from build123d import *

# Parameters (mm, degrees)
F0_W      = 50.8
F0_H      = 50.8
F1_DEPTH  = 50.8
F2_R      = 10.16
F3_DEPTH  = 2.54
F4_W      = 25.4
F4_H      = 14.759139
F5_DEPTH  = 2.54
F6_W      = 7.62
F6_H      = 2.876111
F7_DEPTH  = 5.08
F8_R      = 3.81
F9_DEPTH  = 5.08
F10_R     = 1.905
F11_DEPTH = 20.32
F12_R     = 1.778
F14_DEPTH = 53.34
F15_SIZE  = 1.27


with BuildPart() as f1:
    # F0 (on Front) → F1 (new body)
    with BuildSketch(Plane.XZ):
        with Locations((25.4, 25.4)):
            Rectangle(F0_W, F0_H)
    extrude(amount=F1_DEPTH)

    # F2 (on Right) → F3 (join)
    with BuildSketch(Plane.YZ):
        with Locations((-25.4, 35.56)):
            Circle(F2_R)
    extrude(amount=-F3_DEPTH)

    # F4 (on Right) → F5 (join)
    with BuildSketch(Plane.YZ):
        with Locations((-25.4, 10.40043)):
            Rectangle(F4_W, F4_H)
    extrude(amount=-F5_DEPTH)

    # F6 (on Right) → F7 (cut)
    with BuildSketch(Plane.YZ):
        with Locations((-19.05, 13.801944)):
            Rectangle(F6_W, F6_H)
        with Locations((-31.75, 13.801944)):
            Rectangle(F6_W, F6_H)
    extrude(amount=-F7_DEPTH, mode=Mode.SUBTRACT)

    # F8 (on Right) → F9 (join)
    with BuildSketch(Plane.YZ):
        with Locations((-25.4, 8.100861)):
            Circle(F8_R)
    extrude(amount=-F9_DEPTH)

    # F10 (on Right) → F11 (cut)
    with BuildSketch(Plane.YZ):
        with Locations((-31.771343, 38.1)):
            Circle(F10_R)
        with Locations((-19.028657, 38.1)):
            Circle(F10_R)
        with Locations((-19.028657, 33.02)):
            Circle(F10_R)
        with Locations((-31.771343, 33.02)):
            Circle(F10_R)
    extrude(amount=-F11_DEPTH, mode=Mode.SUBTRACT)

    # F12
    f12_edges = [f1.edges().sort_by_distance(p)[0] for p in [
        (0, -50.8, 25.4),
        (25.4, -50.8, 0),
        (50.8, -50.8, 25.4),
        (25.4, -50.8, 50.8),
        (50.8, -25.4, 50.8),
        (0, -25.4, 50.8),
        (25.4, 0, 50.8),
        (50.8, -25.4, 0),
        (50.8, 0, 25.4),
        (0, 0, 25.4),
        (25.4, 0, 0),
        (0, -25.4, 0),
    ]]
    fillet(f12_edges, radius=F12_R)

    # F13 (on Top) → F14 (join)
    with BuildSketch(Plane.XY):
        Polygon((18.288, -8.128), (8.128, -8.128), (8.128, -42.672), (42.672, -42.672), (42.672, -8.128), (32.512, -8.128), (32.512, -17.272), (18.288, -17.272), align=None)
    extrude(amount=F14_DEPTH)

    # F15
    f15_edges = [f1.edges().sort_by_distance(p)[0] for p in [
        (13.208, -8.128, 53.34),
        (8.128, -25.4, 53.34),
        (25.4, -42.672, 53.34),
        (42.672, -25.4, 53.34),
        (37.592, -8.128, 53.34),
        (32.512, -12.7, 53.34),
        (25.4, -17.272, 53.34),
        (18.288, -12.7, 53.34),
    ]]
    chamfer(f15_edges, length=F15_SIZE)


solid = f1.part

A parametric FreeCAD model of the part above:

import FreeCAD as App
import Part
import Sketcher
Q = App.Units.Quantity


def edges_at(feature, points):
    """Names of the edges that pass closest to the given points."""
    edges = feature.Shape.Edges
    near = lambda p: min(range(len(edges)), key=lambda i: edges[i].distToShape(Part.Vertex(*p))[0])
    return sorted({f"Edge{near(p) + 1}" for p in points})

doc = App.newDocument("Part")
params = doc.addObject("Spreadsheet::Sheet", "Params")
for row, (alias, value) in enumerate([
    ("sketch1_width", "2 in"),
    ("pad1_length", "2 in"),
    ("sketch2_diameter", "0.8 in"),
    ("pad2_length", "0.1 in"),
    ("sketch3_width", "1 in"),
    ("pad3_length", "0.1 in"),
    ("sketch4_width", "0.3 in"),
    ("pocket1_length", "0.2 in"),
    ("sketch5_diameter", "0.3 in"),
    ("pad4_length", "0.2 in"),
    ("sketch6_diameter", "0.15 in"),
    ("pocket2_length", "0.8 in"),
    ("fillet_radius", "0.07 in"),
    ("sketch7_width", "0.4 in"),
    ("sketch7_width2", "1.36 in"),
    ("pad5_length", "2.1 in"),
    ("chamfer_size", "0.05 in"),
], start=1):
    params.set(f"A{row}", alias)
    params.set(f"B{row}", "=" + value)
    params.setAlias(f"B{row}", alias)

body = doc.addObject("PartDesign::Body", "Body")

sketch1 = doc.addObject("Sketcher::SketchObject", "Sketch")
body.addObject(sketch1)
sketch1.AttachmentSupport = (doc.XZ_Plane, [""])
sketch1.MapMode = "FlatFace"
sketch1.addGeometry([
    Part.LineSegment(App.Vector(0, 51, 0), App.Vector(0, 0, 0)),
    Part.LineSegment(App.Vector(0, 0, 0), App.Vector(51, 0, 0)),
    Part.LineSegment(App.Vector(51, 0, 0), App.Vector(51, 51, 0)),
    Part.LineSegment(App.Vector(51, 51, 0), App.Vector(0, 51, 0)),
], False)
sketch1.addConstraint([
    Sketcher.Constraint("Coincident", 0, 2, 1, 1),
    Sketcher.Constraint("Coincident", 1, 2, 2, 1),
    Sketcher.Constraint("Coincident", 2, 2, 3, 1),
    Sketcher.Constraint("Coincident", 3, 2, 0, 1),
    Sketcher.Constraint("Vertical", 0),
    Sketcher.Constraint("Horizontal", 1),
    Sketcher.Constraint("Vertical", 2),
    Sketcher.Constraint("Horizontal", 3),
    Sketcher.Constraint("Coincident", 0, 2, -1, 1),
    Sketcher.Constraint("Equal", 3, 0),
    Sketcher.Constraint("DistanceX", 1, 1, 1, 2, Q("2 in")),
])
sketch1.setExpression("Constraints[10]", "Params.sketch1_width")
pad1 = doc.addObject("PartDesign::Pad", "Pad")
body.addObject(pad1)
pad1.Profile = sketch1
pad1.setExpression("Length", "Params.pad1_length")

sketch2 = doc.addObject("Sketcher::SketchObject", "Sketch001")
body.addObject(sketch2)
sketch2.AttachmentSupport = (doc.YZ_Plane, [""])
sketch2.MapMode = "FlatFace"
sketch2.addGeometry(Part.Circle(App.Vector(-25, 36, 0), App.Vector(0, 0, 1), 10), False)
sketch2.addConstraint([
    Sketcher.Constraint("Diameter", 0, Q("0.8 in")),
    Sketcher.Constraint("DistanceX", 0, 3, -1, 1, Q("1 in")),
    Sketcher.Constraint("DistanceY", -1, 1, 0, 3, Q("1.4 in")),
])
sketch2.setExpression("Constraints[0]", "Params.sketch2_diameter")
pad2 = doc.addObject("PartDesign::Pad", "Pad001")
body.addObject(pad2)
pad2.Profile = sketch2
pad2.setExpression("Length", "Params.pad2_length")
pad2.Reversed = True

sketch3 = doc.addObject("Sketcher::SketchObject", "Sketch002")
body.addObject(sketch3)
sketch3.AttachmentSupport = (doc.YZ_Plane, [""])
sketch3.MapMode = "FlatFace"
sketch3.addGeometry([
    Part.LineSegment(App.Vector(-38, 18, 0), App.Vector(-38, 3, 0)),
    Part.LineSegment(App.Vector(-38, 3, 0), App.Vector(-13, 3, 0)),
    Part.LineSegment(App.Vector(-13, 3, 0), App.Vector(-13, 18, 0)),
    Part.LineSegment(App.Vector(-13, 18, 0), App.Vector(-38, 18, 0)),
], False)
sketch3.addConstraint([
    Sketcher.Constraint("Coincident", 0, 2, 1, 1),
    Sketcher.Constraint("Coincident", 1, 2, 2, 1),
    Sketcher.Constraint("Coincident", 2, 2, 3, 1),
    Sketcher.Constraint("Coincident", 3, 2, 0, 1),
    Sketcher.Constraint("Vertical", 0),
    Sketcher.Constraint("Horizontal", 1),
    Sketcher.Constraint("Vertical", 2),
    Sketcher.Constraint("Horizontal", 3),
    Sketcher.Constraint("DistanceX", 1, 1, 1, 2, Q("1 in")),
    Sketcher.Constraint("DistanceX", 0, 2, -1, 1, Q("1.5 in")),
    Sketcher.Constraint("DistanceY", -1, 1, 2, 2, Q("0.7 in")),
    Sketcher.Constraint("DistanceY", 0, 2, 0, 1, 14.759139),
])
sketch3.setExpression("Constraints[8]", "Params.sketch3_width")
pad3 = doc.addObject("PartDesign::Pad", "Pad002")
body.addObject(pad3)
pad3.Profile = sketch3
pad3.setExpression("Length", "Params.pad3_length")
pad3.Reversed = True

sketch4 = doc.addObject("Sketcher::SketchObject", "Sketch003")
body.addObject(sketch4)
sketch4.AttachmentSupport = (doc.YZ_Plane, [""])
sketch4.MapMode = "FlatFace"
sketch4.addGeometry([
    Part.LineSegment(App.Vector(-22.9, 15.2, 0), App.Vector(-22.9, 12.4, 0)),
    Part.LineSegment(App.Vector(-22.9, 12.4, 0), App.Vector(-15.2, 12.4, 0)),
    Part.LineSegment(App.Vector(-15.2, 12.4, 0), App.Vector(-15.2, 15.2, 0)),
    Part.LineSegment(App.Vector(-15.2, 15.2, 0), App.Vector(-22.9, 15.2, 0)),
    Part.LineSegment(App.Vector(-35.6, 15.2, 0), App.Vector(-35.6, 12.4, 0)),
    Part.LineSegment(App.Vector(-35.6, 12.4, 0), App.Vector(-27.9, 12.4, 0)),
    Part.LineSegment(App.Vector(-27.9, 12.4, 0), App.Vector(-27.9, 15.2, 0)),
    Part.LineSegment(App.Vector(-27.9, 15.2, 0), App.Vector(-35.6, 15.2, 0)),
], False)
sketch4.addConstraint([
    Sketcher.Constraint("Coincident", 0, 2, 1, 1),
    Sketcher.Constraint("Coincident", 1, 2, 2, 1),
    Sketcher.Constraint("Coincident", 2, 2, 3, 1),
    Sketcher.Constraint("Coincident", 3, 2, 0, 1),
    Sketcher.Constraint("Coincident", 4, 2, 5, 1),
    Sketcher.Constraint("Coincident", 5, 2, 6, 1),
    Sketcher.Constraint("Coincident", 6, 2, 7, 1),
    Sketcher.Constraint("Coincident", 7, 2, 4, 1),
    Sketcher.Constraint("Vertical", 0),
    Sketcher.Constraint("Horizontal", 1),
    Sketcher.Constraint("Vertical", 2),
    Sketcher.Constraint("Horizontal", 3),
    Sketcher.Constraint("Vertical", 4),
    Sketcher.Constraint("Horizontal", 5),
    Sketcher.Constraint("Vertical", 6),
    Sketcher.Constraint("Horizontal", 7),
    Sketcher.Constraint("Horizontal", 1, 2, 4, 2),
    Sketcher.Constraint("Horizontal", 3, 2, 6, 2),
    Sketcher.Constraint("Equal", 3, 5),
    Sketcher.Constraint("DistanceX", 1, 1, 1, 2, Q("0.3 in")),
    Sketcher.Constraint("DistanceX", 0, 2, -1, 1, Q("0.9 in")),
    Sketcher.Constraint("DistanceY", -1, 1, 2, 2, Q("0.6 in")),
    Sketcher.Constraint("DistanceX", 4, 2, -1, 1, Q("1.4 in")),
    Sketcher.Constraint("DistanceY", 0, 2, 0, 1, 2.876111),
])
sketch4.setExpression("Constraints[19]", "Params.sketch4_width")
pocket1 = doc.addObject("PartDesign::Pocket", "Pocket")
body.addObject(pocket1)
pocket1.Profile = sketch4
pocket1.setExpression("Length", "Params.pocket1_length")

sketch5 = doc.addObject("Sketcher::SketchObject", "Sketch004")
body.addObject(sketch5)
sketch5.AttachmentSupport = (doc.YZ_Plane, [""])
sketch5.MapMode = "FlatFace"
sketch5.addGeometry(Part.Circle(App.Vector(-25.4, 8.1, 0), App.Vector(0, 0, 1), 3.8), False)
sketch5.addConstraint([
    Sketcher.Constraint("Diameter", 0, Q("0.3 in")),
    Sketcher.Constraint("DistanceX", 0, 3, -1, 1, Q("1 in")),
    Sketcher.Constraint("DistanceY", -1, 1, 0, 3, 8.100861),
])
sketch5.setExpression("Constraints[0]", "Params.sketch5_diameter")
pad4 = doc.addObject("PartDesign::Pad", "Pad003")
body.addObject(pad4)
pad4.Profile = sketch5
pad4.setExpression("Length", "Params.pad4_length")
pad4.Reversed = True

sketch6 = doc.addObject("Sketcher::SketchObject", "Sketch005")
body.addObject(sketch6)
sketch6.AttachmentSupport = (doc.YZ_Plane, [""])
sketch6.MapMode = "FlatFace"
sketch6.addGeometry([
    Part.Circle(App.Vector(-31.8, 38.1, 0), App.Vector(0, 0, 1), 1.9),
    Part.Circle(App.Vector(-19, 38.1, 0), App.Vector(0, 0, 1), 1.9),
    Part.Circle(App.Vector(-19, 33, 0), App.Vector(0, 0, 1), 1.9),
    Part.Circle(App.Vector(-31.8, 33, 0), App.Vector(0, 0, 1), 1.9),
], False)
sketch6.addConstraint([
    Sketcher.Constraint("Equal", 0, 1),
    Sketcher.Constraint("Equal", 1, 2),
    Sketcher.Constraint("Equal", 2, 3),
    Sketcher.Constraint("Horizontal", 0, 3, 1, 3),
    Sketcher.Constraint("Horizontal", 2, 3, 3, 3),
    Sketcher.Constraint("Vertical", 1, 3, 2, 3),
    Sketcher.Constraint("Vertical", 0, 3, 3, 3),
    Sketcher.Constraint("Diameter", 0, Q("0.15 in")),
    Sketcher.Constraint("DistanceY", -1, 1, 0, 3, Q("1.5 in")),
    Sketcher.Constraint("DistanceY", -1, 1, 2, 3, Q("1.3 in")),
    Sketcher.Constraint("DistanceX", 0, 3, -1, 1, 31.771343),
    Sketcher.Constraint("DistanceX", 1, 3, -1, 1, 19.028657),
])
sketch6.setExpression("Constraints[7]", "Params.sketch6_diameter")
pocket2 = doc.addObject("PartDesign::Pocket", "Pocket001")
body.addObject(pocket2)
pocket2.Profile = sketch6
pocket2.setExpression("Length", "Params.pocket2_length")
doc.recompute()

fillet = doc.addObject("PartDesign::Fillet", "Fillet")
body.addObject(fillet)
fillet.Base = (pocket2, edges_at(pocket2, [
    (0, -50.8, 25.4),
    (25.4, -50.8, 0),
    (50.8, -50.8, 25.4),
    (25.4, -50.8, 50.8),
    (50.8, -25.4, 50.8),
    (0, -25.4, 50.8),
    (25.4, 0, 50.8),
    (50.8, -25.4, 0),
    (50.8, 0, 25.4),
    (0, 0, 25.4),
    (25.4, 0, 0),
    (0, -25.4, 0),
]))
fillet.setExpression("Radius", "Params.fillet_radius")

sketch7 = doc.addObject("Sketcher::SketchObject", "Sketch006")
body.addObject(sketch7)
sketch7.AttachmentSupport = (doc.XY_Plane, [""])
sketch7.MapMode = "FlatFace"
sketch7.addGeometry([
    Part.LineSegment(App.Vector(18, -8, 0), App.Vector(8, -8, 0)),
    Part.LineSegment(App.Vector(8, -8, 0), App.Vector(8, -43, 0)),
    Part.LineSegment(App.Vector(8, -43, 0), App.Vector(43, -43, 0)),
    Part.LineSegment(App.Vector(43, -43, 0), App.Vector(43, -8, 0)),
    Part.LineSegment(App.Vector(43, -8, 0), App.Vector(33, -8, 0)),
    Part.LineSegment(App.Vector(33, -8, 0), App.Vector(33, -17, 0)),
    Part.LineSegment(App.Vector(33, -17, 0), App.Vector(18, -17, 0)),
    Part.LineSegment(App.Vector(18, -17, 0), App.Vector(18, -8, 0)),
], False)
sketch7.addConstraint([
    Sketcher.Constraint("Coincident", 0, 2, 1, 1),
    Sketcher.Constraint("Coincident", 1, 2, 2, 1),
    Sketcher.Constraint("Coincident", 2, 2, 3, 1),
    Sketcher.Constraint("Coincident", 3, 2, 4, 1),
    Sketcher.Constraint("Coincident", 4, 2, 5, 1),
    Sketcher.Constraint("Coincident", 5, 2, 6, 1),
    Sketcher.Constraint("Coincident", 6, 2, 7, 1),
    Sketcher.Constraint("Coincident", 7, 2, 0, 1),
    Sketcher.Constraint("Horizontal", 0),
    Sketcher.Constraint("Vertical", 1),
    Sketcher.Constraint("Horizontal", 2),
    Sketcher.Constraint("Vertical", 3),
    Sketcher.Constraint("Horizontal", 4),
    Sketcher.Constraint("Vertical", 5),
    Sketcher.Constraint("Horizontal", 6),
    Sketcher.Constraint("Vertical", 7),
    Sketcher.Constraint("Horizontal", 0, 2, 3, 2),
    Sketcher.Constraint("Equal", 0, 4),
    Sketcher.Constraint("Equal", 2, 1),
    Sketcher.Constraint("DistanceX", 0, 2, 0, 1, Q("0.4 in")),
    Sketcher.Constraint("DistanceY", 2, 2, 5, 2, Q("1 in")),
    Sketcher.Constraint("DistanceX", 2, 1, 2, 2, Q("1.36 in")),
    Sketcher.Constraint("DistanceX", -1, 1, 0, 2, Q("0.32 in")),
    Sketcher.Constraint("DistanceY", 0, 2, -1, 1, Q("0.32 in")),
])
sketch7.setExpression("Constraints[19]", "Params.sketch7_width")
sketch7.setExpression("Constraints[21]", "Params.sketch7_width2")
pad5 = doc.addObject("PartDesign::Pad", "Pad004")
body.addObject(pad5)
pad5.Profile = sketch7
pad5.setExpression("Length", "Params.pad5_length")
doc.recompute()

chamfer = doc.addObject("PartDesign::Chamfer", "Chamfer")
body.addObject(chamfer)
chamfer.Base = (pad5, edges_at(pad5, [
    (13.208, -8.128, 53.34),
    (8.128, -25.4, 53.34),
    (25.4, -42.672, 53.34),
    (42.672, -25.4, 53.34),
    (37.592, -8.128, 53.34),
    (32.512, -12.7, 53.34),
    (25.4, -17.272, 53.34),
    (18.288, -12.7, 53.34),
]))
chamfer.setExpression("Size", "Params.chamfer_size")

doc.recompute()
